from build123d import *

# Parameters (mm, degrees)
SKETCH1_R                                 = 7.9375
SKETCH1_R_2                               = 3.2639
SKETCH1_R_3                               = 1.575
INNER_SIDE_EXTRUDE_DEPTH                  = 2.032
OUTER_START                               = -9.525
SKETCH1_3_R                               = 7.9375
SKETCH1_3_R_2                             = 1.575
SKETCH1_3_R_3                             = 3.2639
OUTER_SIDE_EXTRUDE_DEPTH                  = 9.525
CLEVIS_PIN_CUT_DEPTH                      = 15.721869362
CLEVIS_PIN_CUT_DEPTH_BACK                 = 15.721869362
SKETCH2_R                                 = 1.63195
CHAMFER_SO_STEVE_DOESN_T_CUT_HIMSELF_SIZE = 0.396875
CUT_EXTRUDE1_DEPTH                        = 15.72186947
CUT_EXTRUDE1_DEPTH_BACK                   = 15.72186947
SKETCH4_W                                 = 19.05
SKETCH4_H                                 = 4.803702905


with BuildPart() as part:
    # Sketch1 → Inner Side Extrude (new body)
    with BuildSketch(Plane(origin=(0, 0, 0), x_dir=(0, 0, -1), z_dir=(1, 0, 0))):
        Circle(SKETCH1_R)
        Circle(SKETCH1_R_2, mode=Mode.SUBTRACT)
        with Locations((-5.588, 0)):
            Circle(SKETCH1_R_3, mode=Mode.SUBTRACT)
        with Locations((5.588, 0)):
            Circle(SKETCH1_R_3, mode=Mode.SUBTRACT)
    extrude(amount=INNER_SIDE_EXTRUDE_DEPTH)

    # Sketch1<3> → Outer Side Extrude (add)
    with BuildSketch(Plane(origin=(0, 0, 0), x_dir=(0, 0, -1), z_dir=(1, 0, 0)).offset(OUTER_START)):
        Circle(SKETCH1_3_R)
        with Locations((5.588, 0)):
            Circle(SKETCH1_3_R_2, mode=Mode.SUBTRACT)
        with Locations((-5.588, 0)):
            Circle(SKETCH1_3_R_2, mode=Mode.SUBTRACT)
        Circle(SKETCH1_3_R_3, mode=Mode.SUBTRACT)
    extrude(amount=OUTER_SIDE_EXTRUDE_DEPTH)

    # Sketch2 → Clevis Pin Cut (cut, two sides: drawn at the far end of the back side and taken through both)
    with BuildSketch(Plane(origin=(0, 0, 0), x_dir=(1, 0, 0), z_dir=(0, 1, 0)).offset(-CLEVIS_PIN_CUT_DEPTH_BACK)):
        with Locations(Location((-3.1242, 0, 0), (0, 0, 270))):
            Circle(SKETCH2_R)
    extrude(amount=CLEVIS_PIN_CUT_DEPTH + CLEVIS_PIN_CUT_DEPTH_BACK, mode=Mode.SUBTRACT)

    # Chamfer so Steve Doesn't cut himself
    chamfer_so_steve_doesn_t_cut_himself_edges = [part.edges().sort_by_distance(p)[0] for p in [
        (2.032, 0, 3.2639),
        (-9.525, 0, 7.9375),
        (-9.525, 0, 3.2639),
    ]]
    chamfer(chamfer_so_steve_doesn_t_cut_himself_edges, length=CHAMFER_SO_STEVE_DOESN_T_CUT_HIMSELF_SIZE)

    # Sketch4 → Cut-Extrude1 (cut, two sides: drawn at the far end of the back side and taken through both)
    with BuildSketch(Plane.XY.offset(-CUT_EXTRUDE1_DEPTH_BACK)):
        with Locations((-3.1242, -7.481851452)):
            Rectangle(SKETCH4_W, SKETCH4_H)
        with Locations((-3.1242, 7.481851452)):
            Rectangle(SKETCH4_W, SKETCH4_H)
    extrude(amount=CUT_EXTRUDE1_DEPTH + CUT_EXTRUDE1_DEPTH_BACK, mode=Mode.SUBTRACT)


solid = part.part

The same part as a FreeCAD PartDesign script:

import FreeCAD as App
import Part
import Sketcher
Q = App.Units.Quantity


def edges_at(feature, points):
    """Names of the edges that pass closest to the given points."""
    edges = feature.Shape.Edges
    near = lambda p: min(range(len(edges)), key=lambda i: edges[i].distToShape(Part.Vertex(*p))[0])
    return sorted({f"Edge{near(p) + 1}" for p in points})


def add_polygon(sketch, points):
    """Adds a closed chain of lines whose ends are joined by coincident constraints."""
    first, n = sketch.GeometryCount, len(points)
    for a, b in zip(points, points[1:] + points[:1]):
        sketch.addGeometry(Part.LineSegment(App.Vector(*a, 0), App.Vector(*b, 0)), False)
    for i in range(n):
        sketch.addConstraint(Sketcher.Constraint("Coincident", first + i, 2, first + (i + 1) % n, 1))

doc = App.newDocument("Part")
body = doc.addObject("PartDesign::Body", "Body")

# Sketch on YZ plane
sketch1 = body.newObject("Sketcher::SketchObject", "Sketch")
sketch1.AttachmentSupport = (doc.getObject("YZ_Plane"), [""])
sketch1.MapMode = "FlatFace"
sketch1.addGeometry([
    Part.Circle(App.Vector(0, 0, 0), App.Vector(0, 0, 1), 7.9),
    Part.Circle(App.Vector(0, 5.6, 0), App.Vector(0, 0, 1), 1.6),
    Part.Circle(App.Vector(0, 0, 0), App.Vector(0, 0, 1), 3.3),
    Part.Circle(App.Vector(0, -5.6, 0), App.Vector(0, 0, 1), 1.6),
], False)
sketch1.addConstraint([
    Sketcher.Constraint("Coincident", 0, 3, -1, 1),
    Sketcher.Constraint("Coincident", 2, 3, -1, 1),
    Sketcher.Constraint("Equal", 1, 3),
    Sketcher.Constraint("Symmetric", 1, 3, 3, 3, -1, 1),
    Sketcher.Constraint("PointOnObject", 1, 3, -2),
    Sketcher.Constraint("Diameter", 0, Q("0.625 in")),
    Sketcher.Constraint("Diameter", 2, Q("0.257 in")),
    Sketcher.Constraint("Diameter", 1, 3.15),
    Sketcher.Constraint("DistanceY", -1, 1, 1, 3, Q("0.22 in")),
])
pad1 = body.newObject("PartDesign::Pad", "Pad")
pad1.Profile = sketch1
pad1.Length = Q("0.08 in")

# Sketch on YZ plane
sketch2 = body.newObject("Sketcher::SketchObject", "Sketch001")
sketch2.AttachmentSupport = (doc.getObject("YZ_Plane"), [""])
sketch2.MapMode = "FlatFace"
sketch2.AttachmentOffset = App.Placement(App.Vector(0, 0, -0.375 * 25.4), App.Rotation())
sketch2.addGeometry([
    Part.Circle(App.Vector(0, 0, 0), App.Vector(0, 0, 1), 7.9),
    Part.Circle(App.Vector(0, 5.6, 0), App.Vector(0, 0, 1), 1.6),
    Part.Circle(App.Vector(0, 0, 0), App.Vector(0, 0, 1), 3.3),
    Part.Circle(App.Vector(0, -5.6, 0), App.Vector(0, 0, 1), 1.6),
], False)
sketch2.addConstraint([
    Sketcher.Constraint("Coincident", 0, 3, -1, 1),
    Sketcher.Constraint("Coincident", 2, 3, -1, 1),
    Sketcher.Constraint("Equal", 1, 3),
    Sketcher.Constraint("Symmetric", 1, 3, 3, 3, -1, 1),
    Sketcher.Constraint("PointOnObject", 1, 3, -2),
    Sketcher.Constraint("Diameter", 0, Q("0.625 in")),
    Sketcher.Constraint("Diameter", 2, Q("0.257 in")),
    Sketcher.Constraint("Diameter", 1, 3.15),
    Sketcher.Constraint("DistanceY", -1, 1, 1, 3, Q("0.22 in")),
])
pad2 = body.newObject("PartDesign::Pad", "Pad001")
pad2.Profile = sketch2
pad2.Length = Q("0.375 in")

# Sketch on XZ plane
sketch3 = body.newObject("Sketcher::SketchObject", "Sketch002")
sketch3.AttachmentSupport = (doc.getObject("XZ_Plane"), [""])
sketch3.MapMode = "FlatFace"
sketch3.addGeometry(Part.Circle(App.Vector(-3.1, 0, 0), App.Vector(0, 0, 1), 1.6), False)
sketch3.addConstraint([
    Sketcher.Constraint("PointOnObject", 0, 3, -1),
    Sketcher.Constraint("Diameter", 0, Q("0.1285 in")),
    Sketcher.Constraint("DistanceX", 0, 3, -1, 1, Q("0.123 in")),
])
pocket1 = body.newObject("PartDesign::Pocket", "Pocket")
pocket1.Profile = sketch3
pocket1.Type = "ThroughAll"
pocket1.Midplane = True
doc.recompute()

chamfer = body.newObject("PartDesign::Chamfer", "Chamfer")
chamfer.Base = (pocket1, edges_at(pocket1, [(2.032, 0, 3.264), (-9.525, 0, 7.938), (-9.525, 0, 3.264)]))
chamfer.Size = Q("0.015625 in")

# Sketch on XY plane
sketch4 = body.newObject("Sketcher::SketchObject", "Sketch003")
sketch4.AttachmentSupport = (doc.getObject("XY_Plane"), [""])
sketch4.MapMode = "FlatFace"
add_polygon(sketch4, [(-12.6, -5.1), (-12.6, -9.9), (6.4, -9.9), (6.4, -5.1)])  # lines 0-3
add_polygon(sketch4, [(-12.6, 9.9), (-12.6, 5.1), (6.4, 5.1), (6.4, 9.9)])  # lines 4-7
sketch4.addConstraint([
    Sketcher.Constraint("Vertical", 0),
    Sketcher.Constraint("Horizontal", 1),
    Sketcher.Constraint("Vertical", 2),
    Sketcher.Constraint("Horizontal", 3),
    Sketcher.Constraint("Vertical", 4),
    Sketcher.Constraint("Horizontal", 5),
    Sketcher.Constraint("Vertical", 6),
    Sketcher.Constraint("Horizontal", 7),
    Sketcher.Constraint("Symmetric", 3, 2, 4, 2, -1),
    Sketcher.Constraint("Symmetric", 1, 2, 6, 2, -1),
    Sketcher.Constraint("DistanceX", 1, 1, 1, 2, Q("0.75 in")),
    Sketcher.Constraint("DistanceY", 2, 2, -1, 1, Q("0.2 in")),
    Sketcher.Constraint("DistanceX", 0, 2, -1, 1, Q("0.498 in")),
    Sketcher.Constraint("DistanceY", 0, 2, 0, 1, 4.803703),
])
pocket2 = body.newObject("PartDesign::Pocket", "Pocket001")
pocket2.Profile = sketch4
pocket2.Type = "ThroughAll"
pocket2.Midplane = True

doc.recompute()
